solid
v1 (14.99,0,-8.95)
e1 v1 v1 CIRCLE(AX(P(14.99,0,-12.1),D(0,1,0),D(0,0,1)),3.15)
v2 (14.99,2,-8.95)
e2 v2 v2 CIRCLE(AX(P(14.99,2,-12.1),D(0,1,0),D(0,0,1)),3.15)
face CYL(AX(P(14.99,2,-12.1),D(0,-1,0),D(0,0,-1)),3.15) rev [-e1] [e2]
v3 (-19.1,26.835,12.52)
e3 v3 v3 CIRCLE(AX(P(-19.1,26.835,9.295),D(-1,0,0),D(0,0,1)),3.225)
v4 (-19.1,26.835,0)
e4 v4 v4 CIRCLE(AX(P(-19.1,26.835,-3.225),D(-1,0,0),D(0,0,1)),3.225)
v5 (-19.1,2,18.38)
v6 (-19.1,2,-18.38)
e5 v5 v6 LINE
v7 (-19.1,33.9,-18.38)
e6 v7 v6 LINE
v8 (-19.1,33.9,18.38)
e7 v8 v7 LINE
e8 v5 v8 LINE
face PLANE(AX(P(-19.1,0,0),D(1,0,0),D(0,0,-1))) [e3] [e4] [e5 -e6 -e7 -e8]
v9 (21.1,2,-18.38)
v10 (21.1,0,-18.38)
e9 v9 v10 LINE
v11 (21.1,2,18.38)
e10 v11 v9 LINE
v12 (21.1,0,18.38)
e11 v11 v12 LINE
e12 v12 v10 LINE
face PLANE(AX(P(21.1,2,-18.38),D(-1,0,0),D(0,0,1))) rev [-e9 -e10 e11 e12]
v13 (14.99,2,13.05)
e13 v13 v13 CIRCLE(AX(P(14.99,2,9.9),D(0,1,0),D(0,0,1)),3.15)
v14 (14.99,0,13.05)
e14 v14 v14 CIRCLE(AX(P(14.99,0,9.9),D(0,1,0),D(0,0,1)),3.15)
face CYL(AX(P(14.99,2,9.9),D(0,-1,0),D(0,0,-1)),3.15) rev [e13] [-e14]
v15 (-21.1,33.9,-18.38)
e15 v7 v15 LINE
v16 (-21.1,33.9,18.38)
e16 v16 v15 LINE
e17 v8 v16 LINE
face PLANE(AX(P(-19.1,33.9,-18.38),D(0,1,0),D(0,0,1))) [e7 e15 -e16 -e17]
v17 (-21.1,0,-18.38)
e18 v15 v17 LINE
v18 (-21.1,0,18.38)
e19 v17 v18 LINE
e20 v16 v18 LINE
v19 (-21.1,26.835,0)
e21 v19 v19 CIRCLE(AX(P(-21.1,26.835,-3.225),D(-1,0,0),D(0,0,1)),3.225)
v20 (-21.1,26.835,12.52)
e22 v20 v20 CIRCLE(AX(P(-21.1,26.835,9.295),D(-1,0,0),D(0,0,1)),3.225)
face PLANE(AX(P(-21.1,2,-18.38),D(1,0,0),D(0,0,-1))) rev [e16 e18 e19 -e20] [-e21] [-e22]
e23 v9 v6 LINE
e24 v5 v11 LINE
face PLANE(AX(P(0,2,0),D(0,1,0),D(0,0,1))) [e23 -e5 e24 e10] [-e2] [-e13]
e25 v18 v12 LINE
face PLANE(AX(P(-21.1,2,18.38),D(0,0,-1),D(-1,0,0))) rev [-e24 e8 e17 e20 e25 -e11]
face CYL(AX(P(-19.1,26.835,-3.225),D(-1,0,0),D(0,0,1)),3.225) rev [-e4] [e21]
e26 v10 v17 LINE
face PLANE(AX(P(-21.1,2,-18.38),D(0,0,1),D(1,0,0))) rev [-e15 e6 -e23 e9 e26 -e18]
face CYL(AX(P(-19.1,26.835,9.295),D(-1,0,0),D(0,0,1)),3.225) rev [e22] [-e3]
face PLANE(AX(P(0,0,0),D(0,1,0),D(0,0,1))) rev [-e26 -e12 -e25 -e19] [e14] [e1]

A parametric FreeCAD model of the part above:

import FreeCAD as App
import Part
import Sketcher
from FreeCAD import Vector


def add_polygon(sketch, points):
    """Adds a closed chain of lines whose ends are joined by coincident constraints."""
    first, n = sketch.GeometryCount, len(points)
    for a, b in zip(points, points[1:] + points[:1]):
        sketch.addGeometry(Part.LineSegment(App.Vector(*a, 0), App.Vector(*b, 0)), False)
    for i in range(n):
        sketch.addConstraint(Sketcher.Constraint("Coincident", first + i, 2, first + (i + 1) % n, 1))

doc = App.newDocument("Part")
body = doc.addObject("PartDesign::Body", "Body")

# Sketch on XZ plane
sketch1 = body.newObject("Sketcher::SketchObject", "Sketch")
sketch1.AttachmentSupport = (doc.getObject("XZ_Plane"), [""])
sketch1.MapMode = "FlatFace"
add_polygon(sketch1, [(-21.1, -18.4), (-21.1, 18.4), (21.1, 18.4), (21.1, -18.4)])  # lines 0-3
sketch1.addGeometry(Part.Circle(Vector(15, 9.9, 0), Vector(0, 0, 1), 3.1), False)  # 4
sketch1.addGeometry(Part.Circle(Vector(15, -12.1, 0), Vector(0, 0, 1), 3.1), False)  # 5
sketch1.addConstraint([
    Sketcher.Constraint("Vertical", 0),
    Sketcher.Constraint("Horizontal", 1),
    Sketcher.Constraint("Vertical", 2),
    Sketcher.Constraint("Horizontal", 3),
    Sketcher.Constraint("Equal", 4, 5),
    Sketcher.Constraint("Symmetric", 0, 2, 2, 2, -1, 1),
    Sketcher.Constraint("Vertical", 4, 3, 5, 3),
    Sketcher.Constraint("Diameter", 4, 6.3),
    Sketcher.Constraint("DistanceX", 1, 1, 1, 2, 42.2),
    Sketcher.Constraint("DistanceY", 5, 3, 4, 3, 22.0),
    Sketcher.Constraint("DistanceY", 0, 1, 0, 2, 36.76),
    Sketcher.Constraint("DistanceY", -1, 1, 4, 3, 9.9),
    Sketcher.Constraint("DistanceX", -1, 1, 4, 3, 14.99),
])
pad1 = body.newObject("PartDesign::Pad", "Pad")
pad1.Profile = sketch1
pad1.Length = 2
pad1.Reversed = True

# Sketch on YZ plane
sketch2 = body.newObject("Sketcher::SketchObject", "Sketch001")
sketch2.AttachmentSupport = (doc.getObject("YZ_Plane"), [""])
sketch2.MapMode = "FlatFace"
sketch2.AttachmentOffset = App.Placement(Vector(0, 0, -21.1), App.Rotation())
add_polygon(sketch2, [(33.9, -18.4), (0, -18.4), (0, 18.4), (33.9, 18.4)])  # lines 0-3
sketch2.addGeometry(Part.Circle(Vector(26.8, -3.2, 0), Vector(0, 0, 1), 3.2), False)  # 4
sketch2.addGeometry(Part.Circle(Vector(26.8, 9.3, 0), Vector(0, 0, 1), 3.2), False)  # 5
sketch2.addConstraint([
    Sketcher.Constraint("Horizontal", 0),
    Sketcher.Constraint("Vertical", 1),
    Sketcher.Constraint("Horizontal", 2),
    Sketcher.Constraint("Vertical", 3),
    Sketcher.Constraint("Equal", 4, 5),
    Sketcher.Constraint("Symmetric", 0, 2, 1, 2, -1, 1),
    Sketcher.Constraint("Vertical", 4, 3, 5, 3),
    Sketcher.Constraint("Diameter", 4, 6.45),
    Sketcher.Constraint("DistanceX", 0, 2, 0, 1, 33.9),
    Sketcher.Constraint("DistanceY", 1, 1, 1, 2, 36.76),
    Sketcher.Constraint("DistanceY", 4, 3, 5, 3, 12.52),
    Sketcher.Constraint("DistanceX", -1, 1, 4, 3, 26.835),
    Sketcher.Constraint("DistanceY", 4, 3, -1, 1, 3.225),
])
pad2 = body.newObject("PartDesign::Pad", "Pad001")
pad2.Profile = sketch2
pad2.Length = 2

doc.recompute()
